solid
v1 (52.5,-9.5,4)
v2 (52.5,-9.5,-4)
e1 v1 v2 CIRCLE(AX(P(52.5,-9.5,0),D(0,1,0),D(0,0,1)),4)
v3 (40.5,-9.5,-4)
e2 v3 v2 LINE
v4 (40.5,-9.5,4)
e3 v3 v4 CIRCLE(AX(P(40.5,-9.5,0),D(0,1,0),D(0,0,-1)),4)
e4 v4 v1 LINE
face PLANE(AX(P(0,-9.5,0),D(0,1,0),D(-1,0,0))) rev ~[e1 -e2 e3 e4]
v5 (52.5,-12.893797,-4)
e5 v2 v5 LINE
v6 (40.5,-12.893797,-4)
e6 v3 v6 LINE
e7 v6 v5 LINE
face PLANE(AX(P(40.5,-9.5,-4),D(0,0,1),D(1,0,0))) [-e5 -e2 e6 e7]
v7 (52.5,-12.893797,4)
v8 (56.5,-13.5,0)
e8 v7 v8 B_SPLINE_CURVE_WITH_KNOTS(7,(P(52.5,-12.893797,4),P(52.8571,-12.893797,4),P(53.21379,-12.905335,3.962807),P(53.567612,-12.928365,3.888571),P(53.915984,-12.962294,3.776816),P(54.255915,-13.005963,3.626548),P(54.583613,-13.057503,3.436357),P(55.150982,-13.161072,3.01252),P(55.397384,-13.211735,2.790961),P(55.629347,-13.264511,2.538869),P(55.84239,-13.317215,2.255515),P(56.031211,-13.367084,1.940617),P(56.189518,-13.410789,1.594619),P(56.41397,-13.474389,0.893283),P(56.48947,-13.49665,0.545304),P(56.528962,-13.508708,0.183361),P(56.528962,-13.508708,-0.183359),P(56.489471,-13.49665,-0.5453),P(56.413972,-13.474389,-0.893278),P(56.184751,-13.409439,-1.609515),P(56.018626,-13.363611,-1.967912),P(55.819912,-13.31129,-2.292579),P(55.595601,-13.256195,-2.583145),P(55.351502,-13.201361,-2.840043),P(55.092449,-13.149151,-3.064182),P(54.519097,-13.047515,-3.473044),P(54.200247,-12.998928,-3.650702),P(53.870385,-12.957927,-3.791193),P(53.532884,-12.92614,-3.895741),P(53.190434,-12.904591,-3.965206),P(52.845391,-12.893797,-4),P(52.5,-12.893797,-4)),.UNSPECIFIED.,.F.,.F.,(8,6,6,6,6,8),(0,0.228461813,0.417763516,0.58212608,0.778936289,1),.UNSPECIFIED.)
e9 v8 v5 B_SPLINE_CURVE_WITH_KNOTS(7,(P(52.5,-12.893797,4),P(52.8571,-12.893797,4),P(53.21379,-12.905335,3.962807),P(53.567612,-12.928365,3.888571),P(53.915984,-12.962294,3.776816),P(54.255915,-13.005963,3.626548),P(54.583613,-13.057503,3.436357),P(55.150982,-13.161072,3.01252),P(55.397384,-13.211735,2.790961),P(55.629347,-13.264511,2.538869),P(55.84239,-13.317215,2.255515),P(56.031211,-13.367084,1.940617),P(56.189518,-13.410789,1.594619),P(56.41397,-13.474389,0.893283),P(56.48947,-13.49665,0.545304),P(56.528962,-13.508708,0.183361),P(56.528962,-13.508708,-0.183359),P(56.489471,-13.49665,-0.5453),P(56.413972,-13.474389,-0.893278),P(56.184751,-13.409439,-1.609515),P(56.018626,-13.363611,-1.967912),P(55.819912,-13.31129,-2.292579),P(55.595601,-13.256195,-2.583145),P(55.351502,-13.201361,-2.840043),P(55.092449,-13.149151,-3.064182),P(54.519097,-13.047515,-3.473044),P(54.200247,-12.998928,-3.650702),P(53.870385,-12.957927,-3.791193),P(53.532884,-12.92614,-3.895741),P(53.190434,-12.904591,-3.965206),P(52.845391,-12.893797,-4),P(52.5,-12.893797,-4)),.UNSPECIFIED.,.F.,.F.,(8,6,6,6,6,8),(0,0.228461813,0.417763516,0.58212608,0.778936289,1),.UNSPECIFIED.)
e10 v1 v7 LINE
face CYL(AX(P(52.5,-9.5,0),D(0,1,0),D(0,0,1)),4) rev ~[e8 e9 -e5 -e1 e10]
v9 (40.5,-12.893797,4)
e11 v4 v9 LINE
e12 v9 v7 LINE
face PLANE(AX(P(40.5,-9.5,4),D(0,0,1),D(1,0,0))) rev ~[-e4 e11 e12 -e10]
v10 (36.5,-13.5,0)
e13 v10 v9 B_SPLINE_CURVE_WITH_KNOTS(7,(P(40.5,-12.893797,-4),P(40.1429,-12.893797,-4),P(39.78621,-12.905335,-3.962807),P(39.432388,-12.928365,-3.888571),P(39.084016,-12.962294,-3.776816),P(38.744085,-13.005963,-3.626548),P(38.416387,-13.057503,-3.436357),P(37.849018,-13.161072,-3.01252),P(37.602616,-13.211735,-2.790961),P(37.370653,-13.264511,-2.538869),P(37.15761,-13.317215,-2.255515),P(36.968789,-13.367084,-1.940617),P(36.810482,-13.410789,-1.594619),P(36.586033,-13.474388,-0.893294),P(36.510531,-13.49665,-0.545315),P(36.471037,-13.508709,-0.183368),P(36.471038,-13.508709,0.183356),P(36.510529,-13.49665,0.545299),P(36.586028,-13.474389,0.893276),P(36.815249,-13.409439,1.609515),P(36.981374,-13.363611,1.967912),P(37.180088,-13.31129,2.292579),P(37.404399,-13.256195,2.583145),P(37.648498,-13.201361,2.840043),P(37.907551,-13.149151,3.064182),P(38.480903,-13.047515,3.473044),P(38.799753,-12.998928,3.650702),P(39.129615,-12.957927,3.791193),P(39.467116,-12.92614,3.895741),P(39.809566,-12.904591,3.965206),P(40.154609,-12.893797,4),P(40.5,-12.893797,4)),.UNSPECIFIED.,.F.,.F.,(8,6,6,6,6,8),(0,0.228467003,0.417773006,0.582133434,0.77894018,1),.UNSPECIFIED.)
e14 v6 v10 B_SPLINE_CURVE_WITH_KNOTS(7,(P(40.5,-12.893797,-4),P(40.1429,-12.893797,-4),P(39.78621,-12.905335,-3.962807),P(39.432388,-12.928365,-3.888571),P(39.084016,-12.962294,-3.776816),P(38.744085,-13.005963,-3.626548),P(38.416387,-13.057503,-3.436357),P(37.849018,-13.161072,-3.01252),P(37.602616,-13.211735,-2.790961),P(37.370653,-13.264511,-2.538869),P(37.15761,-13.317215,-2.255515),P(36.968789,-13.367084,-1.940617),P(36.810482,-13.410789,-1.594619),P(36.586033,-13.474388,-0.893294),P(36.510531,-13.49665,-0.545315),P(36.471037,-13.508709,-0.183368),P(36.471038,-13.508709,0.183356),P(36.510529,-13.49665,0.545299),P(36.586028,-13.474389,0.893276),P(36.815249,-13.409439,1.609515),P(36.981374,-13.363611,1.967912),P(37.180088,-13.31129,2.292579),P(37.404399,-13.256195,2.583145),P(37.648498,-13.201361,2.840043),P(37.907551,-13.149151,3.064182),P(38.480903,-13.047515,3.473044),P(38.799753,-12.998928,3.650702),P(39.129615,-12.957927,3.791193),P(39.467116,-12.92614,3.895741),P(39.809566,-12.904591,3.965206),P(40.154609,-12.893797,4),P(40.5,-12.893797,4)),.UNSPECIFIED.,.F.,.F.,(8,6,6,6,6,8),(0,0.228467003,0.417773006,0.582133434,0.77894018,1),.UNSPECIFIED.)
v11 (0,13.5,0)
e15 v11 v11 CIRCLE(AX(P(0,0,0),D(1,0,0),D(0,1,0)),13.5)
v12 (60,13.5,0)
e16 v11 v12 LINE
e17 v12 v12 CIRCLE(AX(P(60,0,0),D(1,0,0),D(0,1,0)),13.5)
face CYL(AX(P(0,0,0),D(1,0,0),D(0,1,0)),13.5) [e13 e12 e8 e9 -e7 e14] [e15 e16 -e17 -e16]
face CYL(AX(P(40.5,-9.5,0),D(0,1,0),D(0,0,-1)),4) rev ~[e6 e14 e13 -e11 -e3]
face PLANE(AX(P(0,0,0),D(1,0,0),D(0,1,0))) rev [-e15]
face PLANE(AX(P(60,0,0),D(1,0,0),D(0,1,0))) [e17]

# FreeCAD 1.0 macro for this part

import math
import FreeCAD as App
import Part
import Sketcher
from FreeCAD import Vector

doc = App.newDocument("Part")
body = doc.addObject("PartDesign::Body", "Body")

# Sketch on XY plane
sketch1 = doc.addObject("Sketcher::SketchObject", "Sketch")
body.addObject(sketch1)
sketch1.AttachmentSupport = (doc.XY_Plane, [""])
sketch1.MapMode = "FlatFace"
sketch1.addGeometry([
    Part.LineSegment(Vector(0, 14, 0), Vector(0, 0, 0)),
    Part.LineSegment(Vector(0, 0, 0), Vector(60, 0, 0)),
    Part.LineSegment(Vector(60, 0, 0), Vector(60, 14, 0)),
    Part.LineSegment(Vector(60, 14, 0), Vector(0, 14, 0)),
], False)
sketch1.addConstraint([
    Sketcher.Constraint("Coincident", 0, 2, 1, 1),
    Sketcher.Constraint("Coincident", 1, 2, 2, 1),
    Sketcher.Constraint("Coincident", 2, 2, 3, 1),
    Sketcher.Constraint("Coincident", 3, 2, 0, 1),
    Sketcher.Constraint("Vertical", 0),
    Sketcher.Constraint("Horizontal", 1),
    Sketcher.Constraint("Vertical", 2),
    Sketcher.Constraint("Horizontal", 3),
    Sketcher.Constraint("Coincident", 0, 2, -1, 1),
    Sketcher.Constraint("DistanceX", 1, 1, 1, 2, 60.0),
    Sketcher.Constraint("DistanceY", 0, 2, 0, 1, 13.5),
])
revolution = doc.addObject("PartDesign::Revolution", "Revolution")
body.addObject(revolution)
revolution.Profile = sketch1
revolution.ReferenceAxis = (sketch1, ["H_Axis"])
revolution.Angle = 360

# Sketch on XZ plane
sketch2 = doc.addObject("Sketcher::SketchObject", "Sketch001")
body.addObject(sketch2)
sketch2.AttachmentSupport = (doc.XZ_Plane, [""])
sketch2.MapMode = "FlatFace"
sketch2.AttachmentOffset = App.Placement(Vector(0, 0, 9.5), App.Rotation())
sketch2.addGeometry([
    Part.LineSegment(Vector(52.5, -4, 0), Vector(40.5, -4, 0)),
    Part.ArcOfCircle(Part.Circle(Vector(40.5, 0, 0), Vector(0, 0, 1), 4), math.radians(90), math.radians(270)),
    Part.LineSegment(Vector(40.5, 4, 0), Vector(52.5, 4, 0)),
    Part.ArcOfCircle(Part.Circle(Vector(52.5, 0, 0), Vector(0, 0, 1), 4), math.radians(-90), math.radians(90)),
], False)
sketch2.addConstraint([
    Sketcher.Constraint("Tangent", 0, 2, 1, 2),
    Sketcher.Constraint("Tangent", 1, 1, 2, 1),
    Sketcher.Constraint("Tangent", 2, 2, 3, 2),
    Sketcher.Constraint("Tangent", 3, 1, 0, 1),
    Sketcher.Constraint("Horizontal", 0),
    Sketcher.Constraint("Horizontal", 2),
    Sketcher.Constraint("PointOnObject", 1, 3, -1),
    Sketcher.Constraint("Radius", 1, 4.0),
    Sketcher.Constraint("DistanceX", 0, 2, 0, 1, 12.0),
    Sketcher.Constraint("DistanceX", -1, 1, 1, 3, 40.5),
])
pocket1 = doc.addObject("PartDesign::Pocket", "Pocket")
body.addObject(pocket1)
pocket1.Profile = sketch2
pocket1.Length = 4
pocket1.Reversed = True

doc.recompute()
